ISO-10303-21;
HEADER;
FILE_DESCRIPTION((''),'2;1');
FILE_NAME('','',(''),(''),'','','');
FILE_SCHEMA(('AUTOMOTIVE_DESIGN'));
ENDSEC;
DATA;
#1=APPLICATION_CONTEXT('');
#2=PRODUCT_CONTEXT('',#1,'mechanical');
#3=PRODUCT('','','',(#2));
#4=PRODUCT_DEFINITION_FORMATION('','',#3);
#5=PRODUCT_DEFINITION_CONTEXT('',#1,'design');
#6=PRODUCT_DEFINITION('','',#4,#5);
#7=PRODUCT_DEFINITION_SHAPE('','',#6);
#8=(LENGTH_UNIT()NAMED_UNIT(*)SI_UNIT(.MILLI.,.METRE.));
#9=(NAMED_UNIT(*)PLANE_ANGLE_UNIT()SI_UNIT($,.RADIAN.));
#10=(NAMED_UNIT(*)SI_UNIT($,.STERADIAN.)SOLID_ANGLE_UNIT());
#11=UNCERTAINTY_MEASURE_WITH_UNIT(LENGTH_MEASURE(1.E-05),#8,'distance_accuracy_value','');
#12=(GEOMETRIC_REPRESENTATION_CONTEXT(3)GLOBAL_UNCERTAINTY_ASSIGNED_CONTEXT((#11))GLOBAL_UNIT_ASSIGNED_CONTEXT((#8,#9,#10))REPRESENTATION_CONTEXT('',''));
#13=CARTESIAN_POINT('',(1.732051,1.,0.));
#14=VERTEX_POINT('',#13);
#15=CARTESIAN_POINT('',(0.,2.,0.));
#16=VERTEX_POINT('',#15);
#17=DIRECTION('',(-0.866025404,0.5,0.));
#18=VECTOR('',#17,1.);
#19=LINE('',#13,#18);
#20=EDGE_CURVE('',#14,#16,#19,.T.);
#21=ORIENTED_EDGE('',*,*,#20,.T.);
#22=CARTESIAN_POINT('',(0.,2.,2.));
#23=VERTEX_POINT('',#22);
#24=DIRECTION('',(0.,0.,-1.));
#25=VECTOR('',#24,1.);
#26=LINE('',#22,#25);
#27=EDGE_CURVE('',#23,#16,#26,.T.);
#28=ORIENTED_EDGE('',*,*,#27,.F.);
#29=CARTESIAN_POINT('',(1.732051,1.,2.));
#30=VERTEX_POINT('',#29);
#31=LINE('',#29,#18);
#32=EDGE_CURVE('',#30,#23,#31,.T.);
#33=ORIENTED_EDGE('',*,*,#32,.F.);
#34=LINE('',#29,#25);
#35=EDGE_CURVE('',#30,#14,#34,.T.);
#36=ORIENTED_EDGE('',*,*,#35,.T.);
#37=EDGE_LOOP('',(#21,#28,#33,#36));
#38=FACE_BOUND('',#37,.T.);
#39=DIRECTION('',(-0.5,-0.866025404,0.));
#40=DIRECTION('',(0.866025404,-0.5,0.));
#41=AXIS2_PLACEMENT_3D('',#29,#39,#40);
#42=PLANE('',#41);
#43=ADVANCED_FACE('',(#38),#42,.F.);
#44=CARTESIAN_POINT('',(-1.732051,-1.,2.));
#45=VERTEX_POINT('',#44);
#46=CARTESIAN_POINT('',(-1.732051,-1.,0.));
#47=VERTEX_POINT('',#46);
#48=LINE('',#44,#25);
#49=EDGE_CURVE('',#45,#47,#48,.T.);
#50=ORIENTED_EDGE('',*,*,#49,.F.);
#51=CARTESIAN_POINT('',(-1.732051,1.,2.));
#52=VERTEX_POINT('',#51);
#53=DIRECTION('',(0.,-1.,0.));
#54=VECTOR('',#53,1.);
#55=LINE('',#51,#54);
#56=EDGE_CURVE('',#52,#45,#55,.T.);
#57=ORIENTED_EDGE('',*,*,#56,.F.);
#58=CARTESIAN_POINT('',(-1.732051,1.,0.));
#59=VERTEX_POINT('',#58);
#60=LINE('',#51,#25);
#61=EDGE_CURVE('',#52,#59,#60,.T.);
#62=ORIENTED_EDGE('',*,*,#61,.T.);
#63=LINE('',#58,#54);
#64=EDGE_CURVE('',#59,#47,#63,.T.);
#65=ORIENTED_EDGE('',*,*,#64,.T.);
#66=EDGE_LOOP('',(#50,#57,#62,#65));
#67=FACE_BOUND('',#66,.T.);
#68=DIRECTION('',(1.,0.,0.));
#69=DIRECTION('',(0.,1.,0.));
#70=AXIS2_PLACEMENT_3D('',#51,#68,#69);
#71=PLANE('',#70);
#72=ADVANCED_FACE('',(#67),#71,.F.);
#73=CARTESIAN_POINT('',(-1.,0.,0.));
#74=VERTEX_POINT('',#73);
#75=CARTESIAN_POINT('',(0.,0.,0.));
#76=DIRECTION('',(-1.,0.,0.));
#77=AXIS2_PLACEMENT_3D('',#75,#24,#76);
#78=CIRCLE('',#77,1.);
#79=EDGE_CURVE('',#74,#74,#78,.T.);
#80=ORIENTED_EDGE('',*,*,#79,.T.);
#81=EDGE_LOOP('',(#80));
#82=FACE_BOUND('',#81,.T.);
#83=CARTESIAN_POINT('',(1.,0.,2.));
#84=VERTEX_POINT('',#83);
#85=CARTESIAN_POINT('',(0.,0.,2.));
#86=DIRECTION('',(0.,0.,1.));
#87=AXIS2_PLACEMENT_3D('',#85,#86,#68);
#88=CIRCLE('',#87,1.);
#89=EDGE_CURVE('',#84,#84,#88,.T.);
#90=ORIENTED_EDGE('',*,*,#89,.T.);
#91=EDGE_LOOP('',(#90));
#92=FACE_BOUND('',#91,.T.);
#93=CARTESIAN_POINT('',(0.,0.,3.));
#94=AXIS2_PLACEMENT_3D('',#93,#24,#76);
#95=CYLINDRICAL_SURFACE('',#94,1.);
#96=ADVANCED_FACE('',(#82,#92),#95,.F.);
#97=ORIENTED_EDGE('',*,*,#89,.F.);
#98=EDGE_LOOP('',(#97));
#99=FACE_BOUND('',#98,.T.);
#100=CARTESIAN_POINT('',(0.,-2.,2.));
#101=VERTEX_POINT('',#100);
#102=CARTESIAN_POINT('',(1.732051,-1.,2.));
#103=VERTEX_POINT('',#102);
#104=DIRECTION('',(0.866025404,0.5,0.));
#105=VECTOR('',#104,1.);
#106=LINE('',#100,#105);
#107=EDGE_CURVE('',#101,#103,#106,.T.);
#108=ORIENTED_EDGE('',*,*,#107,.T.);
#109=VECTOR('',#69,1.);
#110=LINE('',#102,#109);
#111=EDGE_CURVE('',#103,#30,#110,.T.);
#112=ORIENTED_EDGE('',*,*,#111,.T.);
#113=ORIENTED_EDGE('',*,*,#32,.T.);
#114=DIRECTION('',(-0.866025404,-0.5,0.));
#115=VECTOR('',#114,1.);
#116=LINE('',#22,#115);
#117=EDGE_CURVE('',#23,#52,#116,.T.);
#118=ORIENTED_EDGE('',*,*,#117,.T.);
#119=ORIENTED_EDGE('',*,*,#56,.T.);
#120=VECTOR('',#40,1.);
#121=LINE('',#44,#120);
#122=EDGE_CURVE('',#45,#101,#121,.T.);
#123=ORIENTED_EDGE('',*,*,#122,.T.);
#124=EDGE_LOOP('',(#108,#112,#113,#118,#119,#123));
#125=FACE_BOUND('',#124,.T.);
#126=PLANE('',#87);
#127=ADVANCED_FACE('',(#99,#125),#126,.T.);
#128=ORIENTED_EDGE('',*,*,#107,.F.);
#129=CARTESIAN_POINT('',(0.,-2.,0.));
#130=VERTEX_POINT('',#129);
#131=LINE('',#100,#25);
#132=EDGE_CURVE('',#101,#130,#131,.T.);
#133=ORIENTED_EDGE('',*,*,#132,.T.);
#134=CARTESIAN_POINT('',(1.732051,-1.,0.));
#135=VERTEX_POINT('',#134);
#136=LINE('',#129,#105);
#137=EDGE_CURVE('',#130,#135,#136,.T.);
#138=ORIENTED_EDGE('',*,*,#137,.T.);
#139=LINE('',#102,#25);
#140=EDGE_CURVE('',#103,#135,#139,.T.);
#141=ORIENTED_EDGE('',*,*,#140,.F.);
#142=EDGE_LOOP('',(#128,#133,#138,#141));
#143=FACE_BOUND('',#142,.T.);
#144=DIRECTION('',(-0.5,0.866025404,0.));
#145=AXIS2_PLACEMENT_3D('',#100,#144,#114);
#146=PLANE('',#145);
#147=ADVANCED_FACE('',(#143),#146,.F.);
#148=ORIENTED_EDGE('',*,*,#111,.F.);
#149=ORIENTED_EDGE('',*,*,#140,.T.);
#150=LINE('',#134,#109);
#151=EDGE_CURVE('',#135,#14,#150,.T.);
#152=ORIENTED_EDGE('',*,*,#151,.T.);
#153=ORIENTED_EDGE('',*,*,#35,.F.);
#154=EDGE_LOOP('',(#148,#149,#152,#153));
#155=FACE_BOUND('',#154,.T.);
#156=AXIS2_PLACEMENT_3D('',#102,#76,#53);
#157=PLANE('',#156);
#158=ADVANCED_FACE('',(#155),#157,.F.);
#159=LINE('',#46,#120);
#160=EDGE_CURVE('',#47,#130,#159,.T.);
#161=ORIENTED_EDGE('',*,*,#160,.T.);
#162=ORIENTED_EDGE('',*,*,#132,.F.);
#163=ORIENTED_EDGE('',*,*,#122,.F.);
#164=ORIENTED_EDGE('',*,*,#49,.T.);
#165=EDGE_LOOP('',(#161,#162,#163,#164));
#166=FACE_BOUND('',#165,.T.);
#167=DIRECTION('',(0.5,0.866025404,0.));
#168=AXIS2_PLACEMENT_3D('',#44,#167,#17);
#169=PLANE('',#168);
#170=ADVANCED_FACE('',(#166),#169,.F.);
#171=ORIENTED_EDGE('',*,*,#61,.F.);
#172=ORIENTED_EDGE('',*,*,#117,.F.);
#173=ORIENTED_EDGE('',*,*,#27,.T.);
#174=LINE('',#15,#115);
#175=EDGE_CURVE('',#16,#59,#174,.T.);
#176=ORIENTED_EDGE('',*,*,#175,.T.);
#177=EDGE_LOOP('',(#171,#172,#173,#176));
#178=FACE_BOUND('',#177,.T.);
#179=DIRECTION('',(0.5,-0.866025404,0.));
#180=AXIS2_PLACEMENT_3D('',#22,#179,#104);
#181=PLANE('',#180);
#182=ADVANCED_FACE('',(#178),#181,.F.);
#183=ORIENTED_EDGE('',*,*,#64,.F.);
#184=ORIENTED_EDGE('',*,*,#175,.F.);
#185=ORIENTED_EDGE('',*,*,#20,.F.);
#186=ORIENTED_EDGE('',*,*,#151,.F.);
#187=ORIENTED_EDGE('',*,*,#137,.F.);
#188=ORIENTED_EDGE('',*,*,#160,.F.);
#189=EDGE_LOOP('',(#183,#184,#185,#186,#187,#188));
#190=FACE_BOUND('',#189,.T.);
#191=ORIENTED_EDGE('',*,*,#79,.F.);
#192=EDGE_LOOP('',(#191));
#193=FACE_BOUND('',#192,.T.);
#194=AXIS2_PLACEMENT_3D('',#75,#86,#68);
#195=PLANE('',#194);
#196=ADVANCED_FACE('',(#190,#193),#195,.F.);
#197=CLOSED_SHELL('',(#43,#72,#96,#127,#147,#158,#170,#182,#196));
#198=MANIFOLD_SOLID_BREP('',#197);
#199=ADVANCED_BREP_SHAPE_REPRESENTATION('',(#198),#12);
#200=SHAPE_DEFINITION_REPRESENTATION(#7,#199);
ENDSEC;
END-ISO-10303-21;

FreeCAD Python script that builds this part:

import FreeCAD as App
import Part
import Sketcher
Q = App.Units.Quantity


def add_polygon(sketch, points):
    """Adds a closed chain of lines whose ends are joined by coincident constraints."""
    first, n = sketch.GeometryCount, len(points)
    for a, b in zip(points, points[1:] + points[:1]):
        sketch.addGeometry(Part.LineSegment(App.Vector(*a, 0), App.Vector(*b, 0)), False)
    for i in range(n):
        sketch.addConstraint(Sketcher.Constraint("Coincident", first + i, 2, first + (i + 1) % n, 1))

doc = App.newDocument("Part")
body = doc.addObject("PartDesign::Body", "Body")

# Sketch on XY plane
sketch1 = doc.addObject("Sketcher::SketchObject", "Sketch")
body.addObject(sketch1)
sketch1.AttachmentSupport = (doc.XY_Plane, [""])
sketch1.MapMode = "FlatFace"
add_polygon(sketch1, [(0, 2), (-1.732051, 1), (-1.732051, -1), (0, -2), (1.732051, -1), (1.732051, 1)])  # lines 0-5
sketch1.addConstraint([
    Sketcher.Constraint("Vertical", 1),
    Sketcher.Constraint("Vertical", 4),
    Sketcher.Constraint("Symmetric", 0, 2, 3, 2, -1, 1),
    Sketcher.Constraint("Symmetric", 2, 2, 5, 2, -1, 1),
    Sketcher.Constraint("PointOnObject", 2, 2, -2),
    Sketcher.Constraint("Parallel", 2, 5),
    Sketcher.Constraint("Horizontal", 1, 2, 3, 2),
    Sketcher.Constraint("DistanceY", 1, 2, 1, 1, 2.0),
    Sketcher.Constraint("Angle", 0, Q("-150 deg")),
    Sketcher.Constraint("Distance", 0, 2.0),
])
pad1 = doc.addObject("PartDesign::Pad", "Pad")
body.addObject(pad1)
pad1.Profile = sketch1
pad1.Length = 2

# Sketch on XY plane
sketch2 = doc.addObject("Sketcher::SketchObject", "Sketch001")
body.addObject(sketch2)
sketch2.AttachmentSupport = (doc.XY_Plane, [""])
sketch2.MapMode = "FlatFace"
sketch2.addGeometry(Part.Circle(App.Vector(0, 0, 0), App.Vector(0, 0, 1), 1), False)
sketch2.addConstraint([
    Sketcher.Constraint("Coincident", 0, 3, -1, 1),
    Sketcher.Constraint("Diameter", 0, 2.0),
])
pocket1 = doc.addObject("PartDesign::Pocket", "Pocket")
body.addObject(pocket1)
pocket1.Profile = sketch2
pocket1.Length = 3
pocket1.Reversed = True

doc.recompute()
